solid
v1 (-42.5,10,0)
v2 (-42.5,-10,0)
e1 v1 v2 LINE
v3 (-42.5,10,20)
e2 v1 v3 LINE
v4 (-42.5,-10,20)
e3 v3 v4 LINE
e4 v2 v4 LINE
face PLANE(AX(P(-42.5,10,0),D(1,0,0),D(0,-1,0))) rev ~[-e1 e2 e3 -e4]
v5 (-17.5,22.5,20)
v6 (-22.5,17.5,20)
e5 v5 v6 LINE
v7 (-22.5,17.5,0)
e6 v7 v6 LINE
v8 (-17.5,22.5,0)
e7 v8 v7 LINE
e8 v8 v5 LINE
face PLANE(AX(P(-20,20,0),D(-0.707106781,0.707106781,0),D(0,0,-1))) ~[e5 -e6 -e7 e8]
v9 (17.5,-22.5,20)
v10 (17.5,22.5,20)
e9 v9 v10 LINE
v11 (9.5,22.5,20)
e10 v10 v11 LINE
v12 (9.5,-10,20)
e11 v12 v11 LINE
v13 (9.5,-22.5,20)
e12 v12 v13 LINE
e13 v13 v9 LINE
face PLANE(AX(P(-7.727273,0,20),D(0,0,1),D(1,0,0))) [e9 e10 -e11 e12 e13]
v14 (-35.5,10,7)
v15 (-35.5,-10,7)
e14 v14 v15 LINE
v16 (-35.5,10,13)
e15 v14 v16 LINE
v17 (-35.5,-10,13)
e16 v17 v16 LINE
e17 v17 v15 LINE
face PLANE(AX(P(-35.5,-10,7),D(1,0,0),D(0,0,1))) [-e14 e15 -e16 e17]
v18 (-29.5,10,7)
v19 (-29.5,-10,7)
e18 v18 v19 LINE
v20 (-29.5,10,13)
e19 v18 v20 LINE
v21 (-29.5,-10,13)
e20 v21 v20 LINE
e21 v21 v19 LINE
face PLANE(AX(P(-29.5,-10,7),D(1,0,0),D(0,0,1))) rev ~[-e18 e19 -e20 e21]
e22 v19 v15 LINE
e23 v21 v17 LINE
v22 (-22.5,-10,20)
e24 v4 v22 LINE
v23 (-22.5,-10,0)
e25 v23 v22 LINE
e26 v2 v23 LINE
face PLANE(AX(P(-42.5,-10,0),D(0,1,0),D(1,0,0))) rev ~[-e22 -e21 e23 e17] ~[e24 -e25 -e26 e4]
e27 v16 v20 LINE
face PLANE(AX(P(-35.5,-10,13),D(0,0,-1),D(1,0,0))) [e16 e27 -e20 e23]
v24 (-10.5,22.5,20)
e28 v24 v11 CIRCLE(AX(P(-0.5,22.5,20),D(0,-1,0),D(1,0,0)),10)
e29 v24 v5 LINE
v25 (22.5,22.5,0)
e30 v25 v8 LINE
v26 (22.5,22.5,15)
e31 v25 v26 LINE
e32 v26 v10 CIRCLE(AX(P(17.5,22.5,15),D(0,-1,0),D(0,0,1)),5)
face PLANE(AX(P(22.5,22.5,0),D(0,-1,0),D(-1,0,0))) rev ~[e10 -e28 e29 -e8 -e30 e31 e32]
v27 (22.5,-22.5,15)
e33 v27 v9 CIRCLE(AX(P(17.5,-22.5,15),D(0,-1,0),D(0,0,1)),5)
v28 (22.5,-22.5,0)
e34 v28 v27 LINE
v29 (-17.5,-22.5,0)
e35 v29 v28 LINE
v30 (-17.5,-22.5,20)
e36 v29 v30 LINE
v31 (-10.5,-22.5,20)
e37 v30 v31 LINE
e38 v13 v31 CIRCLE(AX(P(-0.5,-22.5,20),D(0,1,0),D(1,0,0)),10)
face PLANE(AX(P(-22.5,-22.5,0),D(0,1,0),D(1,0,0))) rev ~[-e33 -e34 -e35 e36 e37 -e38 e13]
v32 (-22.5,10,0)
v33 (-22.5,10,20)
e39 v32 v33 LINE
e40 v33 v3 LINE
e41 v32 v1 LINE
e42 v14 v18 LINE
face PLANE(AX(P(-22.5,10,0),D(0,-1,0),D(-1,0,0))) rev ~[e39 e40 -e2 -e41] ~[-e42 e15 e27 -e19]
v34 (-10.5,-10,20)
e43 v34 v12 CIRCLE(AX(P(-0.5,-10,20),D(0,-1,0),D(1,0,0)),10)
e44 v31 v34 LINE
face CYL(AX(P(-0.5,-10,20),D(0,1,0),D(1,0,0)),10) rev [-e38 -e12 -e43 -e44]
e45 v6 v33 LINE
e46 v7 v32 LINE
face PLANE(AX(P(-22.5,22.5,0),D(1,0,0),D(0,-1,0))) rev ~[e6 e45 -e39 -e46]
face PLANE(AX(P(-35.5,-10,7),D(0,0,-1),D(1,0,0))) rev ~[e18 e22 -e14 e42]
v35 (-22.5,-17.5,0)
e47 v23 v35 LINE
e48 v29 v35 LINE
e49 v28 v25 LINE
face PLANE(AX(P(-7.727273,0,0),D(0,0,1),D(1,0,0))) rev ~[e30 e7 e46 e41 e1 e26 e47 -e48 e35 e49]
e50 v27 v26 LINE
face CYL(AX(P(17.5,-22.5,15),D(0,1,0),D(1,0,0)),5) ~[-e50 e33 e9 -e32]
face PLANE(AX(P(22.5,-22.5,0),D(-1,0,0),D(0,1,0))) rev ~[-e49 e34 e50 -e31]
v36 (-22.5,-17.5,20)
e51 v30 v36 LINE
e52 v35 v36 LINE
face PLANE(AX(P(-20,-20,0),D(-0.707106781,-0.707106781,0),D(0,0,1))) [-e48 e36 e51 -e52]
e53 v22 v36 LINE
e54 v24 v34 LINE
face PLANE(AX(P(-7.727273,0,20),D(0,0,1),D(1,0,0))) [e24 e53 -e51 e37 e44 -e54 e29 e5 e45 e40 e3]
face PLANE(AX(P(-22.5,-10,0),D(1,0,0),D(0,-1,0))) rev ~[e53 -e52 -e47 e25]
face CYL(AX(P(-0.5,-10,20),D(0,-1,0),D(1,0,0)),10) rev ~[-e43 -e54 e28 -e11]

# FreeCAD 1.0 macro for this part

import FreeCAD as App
import Part
import Sketcher
from FreeCAD import Vector


def edges_at(feature, points):
    """Names of the edges that pass closest to the given points."""
    edges = feature.Shape.Edges
    near = lambda p: min(range(len(edges)), key=lambda i: edges[i].distToShape(Part.Vertex(*p))[0])
    return sorted({f"Edge{near(p) + 1}" for p in points})


def add_polygon(sketch, points):
    """Adds a closed chain of lines whose ends are joined by coincident constraints."""
    first, n = sketch.GeometryCount, len(points)
    for a, b in zip(points, points[1:] + points[:1]):
        sketch.addGeometry(Part.LineSegment(App.Vector(*a, 0), App.Vector(*b, 0)), False)
    for i in range(n):
        sketch.addConstraint(Sketcher.Constraint("Coincident", first + i, 2, first + (i + 1) % n, 1))

doc = App.newDocument("Part")
body = doc.addObject("PartDesign::Body", "Body")

# Sketch on XY plane
sketch1 = doc.addObject("Sketcher::SketchObject", "Sketch")
body.addObject(sketch1)
sketch1.AttachmentSupport = (doc.XY_Plane, [""])
sketch1.MapMode = "FlatFace"
add_polygon(sketch1, [(-22, -22), (22, -22), (22, 22), (-22, 22), (-22, 10), (-42, 10), (-42, -10), (-22, -10)])  # lines 0-7
sketch1.addConstraint([
    Sketcher.Constraint("Horizontal", 0),
    Sketcher.Constraint("Vertical", 1),
    Sketcher.Constraint("Horizontal", 2),
    Sketcher.Constraint("Vertical", 3),
    Sketcher.Constraint("Horizontal", 4),
    Sketcher.Constraint("Vertical", 5),
    Sketcher.Constraint("Horizontal", 6),
    Sketcher.Constraint("Vertical", 7),
    Sketcher.Constraint("Symmetric", 0, 2, 2, 2, -1, 1),
    Sketcher.Constraint("Symmetric", 3, 2, 6, 2, -1),
    Sketcher.Constraint("Equal", 2, 1),
    Sketcher.Constraint("Equal", 6, 5),
    Sketcher.Constraint("DistanceX", 0, 1, 0, 2, 45.0),
    Sketcher.Constraint("DistanceX", 4, 2, 4, 1, 20.0),
])
pad1 = doc.addObject("PartDesign::Pad", "Pad")
body.addObject(pad1)
pad1.Profile = sketch1
pad1.Length = 20
doc.recompute()

chamfer = doc.addObject("PartDesign::Chamfer", "Chamfer")
body.addObject(chamfer)
chamfer.Base = (pad1, edges_at(pad1, [(-22.5, -22.5, 10), (-22.5, 22.5, 10)]))
chamfer.Size = 5
doc.recompute()

fillet = doc.addObject("PartDesign::Fillet", "Fillet")
body.addObject(fillet)
fillet.Base = (chamfer, edges_at(chamfer, [(22.5, 0, 20)]))
fillet.Radius = 5

# Sketch on XZ plane
sketch2 = doc.addObject("Sketcher::SketchObject", "Sketch001")
body.addObject(sketch2)
sketch2.AttachmentSupport = (doc.XZ_Plane, [""])
sketch2.MapMode = "FlatFace"
sketch2.AttachmentOffset = App.Placement(Vector(0, 0, 10), App.Rotation())
sketch2.addGeometry(Part.Circle(Vector(0, 20, 0), Vector(0, 0, 1), 10), False)  # 0
add_polygon(sketch2, [(-36, 13), (-36, 7), (-30, 7), (-30, 13)])  # lines 1-4
sketch2.addConstraint([
    Sketcher.Constraint("Vertical", 1),
    Sketcher.Constraint("Horizontal", 2),
    Sketcher.Constraint("Vertical", 3),
    Sketcher.Constraint("Horizontal", 4),
    Sketcher.Constraint("Equal", 4, 1),
    Sketcher.Constraint("Diameter", 0, 20.0),
    Sketcher.Constraint("DistanceX", 2, 1, 2, 2, 6.0),
    Sketcher.Constraint("DistanceY", -1, 1, 0, 3, 20.0),
    Sketcher.Constraint("DistanceY", -1, 1, 1, 2, 7.0),
    Sketcher.Constraint("DistanceX", 1, 2, 0, 3, 35.0),
    Sketcher.Constraint("DistanceX", 0, 3, -1, 1, 0.5),
])
pocket1 = doc.addObject("PartDesign::Pocket", "Pocket")
body.addObject(pocket1)
pocket1.Profile = sketch2
pocket1.Length = 108.8
pocket1.Midplane = True

doc.recompute()
